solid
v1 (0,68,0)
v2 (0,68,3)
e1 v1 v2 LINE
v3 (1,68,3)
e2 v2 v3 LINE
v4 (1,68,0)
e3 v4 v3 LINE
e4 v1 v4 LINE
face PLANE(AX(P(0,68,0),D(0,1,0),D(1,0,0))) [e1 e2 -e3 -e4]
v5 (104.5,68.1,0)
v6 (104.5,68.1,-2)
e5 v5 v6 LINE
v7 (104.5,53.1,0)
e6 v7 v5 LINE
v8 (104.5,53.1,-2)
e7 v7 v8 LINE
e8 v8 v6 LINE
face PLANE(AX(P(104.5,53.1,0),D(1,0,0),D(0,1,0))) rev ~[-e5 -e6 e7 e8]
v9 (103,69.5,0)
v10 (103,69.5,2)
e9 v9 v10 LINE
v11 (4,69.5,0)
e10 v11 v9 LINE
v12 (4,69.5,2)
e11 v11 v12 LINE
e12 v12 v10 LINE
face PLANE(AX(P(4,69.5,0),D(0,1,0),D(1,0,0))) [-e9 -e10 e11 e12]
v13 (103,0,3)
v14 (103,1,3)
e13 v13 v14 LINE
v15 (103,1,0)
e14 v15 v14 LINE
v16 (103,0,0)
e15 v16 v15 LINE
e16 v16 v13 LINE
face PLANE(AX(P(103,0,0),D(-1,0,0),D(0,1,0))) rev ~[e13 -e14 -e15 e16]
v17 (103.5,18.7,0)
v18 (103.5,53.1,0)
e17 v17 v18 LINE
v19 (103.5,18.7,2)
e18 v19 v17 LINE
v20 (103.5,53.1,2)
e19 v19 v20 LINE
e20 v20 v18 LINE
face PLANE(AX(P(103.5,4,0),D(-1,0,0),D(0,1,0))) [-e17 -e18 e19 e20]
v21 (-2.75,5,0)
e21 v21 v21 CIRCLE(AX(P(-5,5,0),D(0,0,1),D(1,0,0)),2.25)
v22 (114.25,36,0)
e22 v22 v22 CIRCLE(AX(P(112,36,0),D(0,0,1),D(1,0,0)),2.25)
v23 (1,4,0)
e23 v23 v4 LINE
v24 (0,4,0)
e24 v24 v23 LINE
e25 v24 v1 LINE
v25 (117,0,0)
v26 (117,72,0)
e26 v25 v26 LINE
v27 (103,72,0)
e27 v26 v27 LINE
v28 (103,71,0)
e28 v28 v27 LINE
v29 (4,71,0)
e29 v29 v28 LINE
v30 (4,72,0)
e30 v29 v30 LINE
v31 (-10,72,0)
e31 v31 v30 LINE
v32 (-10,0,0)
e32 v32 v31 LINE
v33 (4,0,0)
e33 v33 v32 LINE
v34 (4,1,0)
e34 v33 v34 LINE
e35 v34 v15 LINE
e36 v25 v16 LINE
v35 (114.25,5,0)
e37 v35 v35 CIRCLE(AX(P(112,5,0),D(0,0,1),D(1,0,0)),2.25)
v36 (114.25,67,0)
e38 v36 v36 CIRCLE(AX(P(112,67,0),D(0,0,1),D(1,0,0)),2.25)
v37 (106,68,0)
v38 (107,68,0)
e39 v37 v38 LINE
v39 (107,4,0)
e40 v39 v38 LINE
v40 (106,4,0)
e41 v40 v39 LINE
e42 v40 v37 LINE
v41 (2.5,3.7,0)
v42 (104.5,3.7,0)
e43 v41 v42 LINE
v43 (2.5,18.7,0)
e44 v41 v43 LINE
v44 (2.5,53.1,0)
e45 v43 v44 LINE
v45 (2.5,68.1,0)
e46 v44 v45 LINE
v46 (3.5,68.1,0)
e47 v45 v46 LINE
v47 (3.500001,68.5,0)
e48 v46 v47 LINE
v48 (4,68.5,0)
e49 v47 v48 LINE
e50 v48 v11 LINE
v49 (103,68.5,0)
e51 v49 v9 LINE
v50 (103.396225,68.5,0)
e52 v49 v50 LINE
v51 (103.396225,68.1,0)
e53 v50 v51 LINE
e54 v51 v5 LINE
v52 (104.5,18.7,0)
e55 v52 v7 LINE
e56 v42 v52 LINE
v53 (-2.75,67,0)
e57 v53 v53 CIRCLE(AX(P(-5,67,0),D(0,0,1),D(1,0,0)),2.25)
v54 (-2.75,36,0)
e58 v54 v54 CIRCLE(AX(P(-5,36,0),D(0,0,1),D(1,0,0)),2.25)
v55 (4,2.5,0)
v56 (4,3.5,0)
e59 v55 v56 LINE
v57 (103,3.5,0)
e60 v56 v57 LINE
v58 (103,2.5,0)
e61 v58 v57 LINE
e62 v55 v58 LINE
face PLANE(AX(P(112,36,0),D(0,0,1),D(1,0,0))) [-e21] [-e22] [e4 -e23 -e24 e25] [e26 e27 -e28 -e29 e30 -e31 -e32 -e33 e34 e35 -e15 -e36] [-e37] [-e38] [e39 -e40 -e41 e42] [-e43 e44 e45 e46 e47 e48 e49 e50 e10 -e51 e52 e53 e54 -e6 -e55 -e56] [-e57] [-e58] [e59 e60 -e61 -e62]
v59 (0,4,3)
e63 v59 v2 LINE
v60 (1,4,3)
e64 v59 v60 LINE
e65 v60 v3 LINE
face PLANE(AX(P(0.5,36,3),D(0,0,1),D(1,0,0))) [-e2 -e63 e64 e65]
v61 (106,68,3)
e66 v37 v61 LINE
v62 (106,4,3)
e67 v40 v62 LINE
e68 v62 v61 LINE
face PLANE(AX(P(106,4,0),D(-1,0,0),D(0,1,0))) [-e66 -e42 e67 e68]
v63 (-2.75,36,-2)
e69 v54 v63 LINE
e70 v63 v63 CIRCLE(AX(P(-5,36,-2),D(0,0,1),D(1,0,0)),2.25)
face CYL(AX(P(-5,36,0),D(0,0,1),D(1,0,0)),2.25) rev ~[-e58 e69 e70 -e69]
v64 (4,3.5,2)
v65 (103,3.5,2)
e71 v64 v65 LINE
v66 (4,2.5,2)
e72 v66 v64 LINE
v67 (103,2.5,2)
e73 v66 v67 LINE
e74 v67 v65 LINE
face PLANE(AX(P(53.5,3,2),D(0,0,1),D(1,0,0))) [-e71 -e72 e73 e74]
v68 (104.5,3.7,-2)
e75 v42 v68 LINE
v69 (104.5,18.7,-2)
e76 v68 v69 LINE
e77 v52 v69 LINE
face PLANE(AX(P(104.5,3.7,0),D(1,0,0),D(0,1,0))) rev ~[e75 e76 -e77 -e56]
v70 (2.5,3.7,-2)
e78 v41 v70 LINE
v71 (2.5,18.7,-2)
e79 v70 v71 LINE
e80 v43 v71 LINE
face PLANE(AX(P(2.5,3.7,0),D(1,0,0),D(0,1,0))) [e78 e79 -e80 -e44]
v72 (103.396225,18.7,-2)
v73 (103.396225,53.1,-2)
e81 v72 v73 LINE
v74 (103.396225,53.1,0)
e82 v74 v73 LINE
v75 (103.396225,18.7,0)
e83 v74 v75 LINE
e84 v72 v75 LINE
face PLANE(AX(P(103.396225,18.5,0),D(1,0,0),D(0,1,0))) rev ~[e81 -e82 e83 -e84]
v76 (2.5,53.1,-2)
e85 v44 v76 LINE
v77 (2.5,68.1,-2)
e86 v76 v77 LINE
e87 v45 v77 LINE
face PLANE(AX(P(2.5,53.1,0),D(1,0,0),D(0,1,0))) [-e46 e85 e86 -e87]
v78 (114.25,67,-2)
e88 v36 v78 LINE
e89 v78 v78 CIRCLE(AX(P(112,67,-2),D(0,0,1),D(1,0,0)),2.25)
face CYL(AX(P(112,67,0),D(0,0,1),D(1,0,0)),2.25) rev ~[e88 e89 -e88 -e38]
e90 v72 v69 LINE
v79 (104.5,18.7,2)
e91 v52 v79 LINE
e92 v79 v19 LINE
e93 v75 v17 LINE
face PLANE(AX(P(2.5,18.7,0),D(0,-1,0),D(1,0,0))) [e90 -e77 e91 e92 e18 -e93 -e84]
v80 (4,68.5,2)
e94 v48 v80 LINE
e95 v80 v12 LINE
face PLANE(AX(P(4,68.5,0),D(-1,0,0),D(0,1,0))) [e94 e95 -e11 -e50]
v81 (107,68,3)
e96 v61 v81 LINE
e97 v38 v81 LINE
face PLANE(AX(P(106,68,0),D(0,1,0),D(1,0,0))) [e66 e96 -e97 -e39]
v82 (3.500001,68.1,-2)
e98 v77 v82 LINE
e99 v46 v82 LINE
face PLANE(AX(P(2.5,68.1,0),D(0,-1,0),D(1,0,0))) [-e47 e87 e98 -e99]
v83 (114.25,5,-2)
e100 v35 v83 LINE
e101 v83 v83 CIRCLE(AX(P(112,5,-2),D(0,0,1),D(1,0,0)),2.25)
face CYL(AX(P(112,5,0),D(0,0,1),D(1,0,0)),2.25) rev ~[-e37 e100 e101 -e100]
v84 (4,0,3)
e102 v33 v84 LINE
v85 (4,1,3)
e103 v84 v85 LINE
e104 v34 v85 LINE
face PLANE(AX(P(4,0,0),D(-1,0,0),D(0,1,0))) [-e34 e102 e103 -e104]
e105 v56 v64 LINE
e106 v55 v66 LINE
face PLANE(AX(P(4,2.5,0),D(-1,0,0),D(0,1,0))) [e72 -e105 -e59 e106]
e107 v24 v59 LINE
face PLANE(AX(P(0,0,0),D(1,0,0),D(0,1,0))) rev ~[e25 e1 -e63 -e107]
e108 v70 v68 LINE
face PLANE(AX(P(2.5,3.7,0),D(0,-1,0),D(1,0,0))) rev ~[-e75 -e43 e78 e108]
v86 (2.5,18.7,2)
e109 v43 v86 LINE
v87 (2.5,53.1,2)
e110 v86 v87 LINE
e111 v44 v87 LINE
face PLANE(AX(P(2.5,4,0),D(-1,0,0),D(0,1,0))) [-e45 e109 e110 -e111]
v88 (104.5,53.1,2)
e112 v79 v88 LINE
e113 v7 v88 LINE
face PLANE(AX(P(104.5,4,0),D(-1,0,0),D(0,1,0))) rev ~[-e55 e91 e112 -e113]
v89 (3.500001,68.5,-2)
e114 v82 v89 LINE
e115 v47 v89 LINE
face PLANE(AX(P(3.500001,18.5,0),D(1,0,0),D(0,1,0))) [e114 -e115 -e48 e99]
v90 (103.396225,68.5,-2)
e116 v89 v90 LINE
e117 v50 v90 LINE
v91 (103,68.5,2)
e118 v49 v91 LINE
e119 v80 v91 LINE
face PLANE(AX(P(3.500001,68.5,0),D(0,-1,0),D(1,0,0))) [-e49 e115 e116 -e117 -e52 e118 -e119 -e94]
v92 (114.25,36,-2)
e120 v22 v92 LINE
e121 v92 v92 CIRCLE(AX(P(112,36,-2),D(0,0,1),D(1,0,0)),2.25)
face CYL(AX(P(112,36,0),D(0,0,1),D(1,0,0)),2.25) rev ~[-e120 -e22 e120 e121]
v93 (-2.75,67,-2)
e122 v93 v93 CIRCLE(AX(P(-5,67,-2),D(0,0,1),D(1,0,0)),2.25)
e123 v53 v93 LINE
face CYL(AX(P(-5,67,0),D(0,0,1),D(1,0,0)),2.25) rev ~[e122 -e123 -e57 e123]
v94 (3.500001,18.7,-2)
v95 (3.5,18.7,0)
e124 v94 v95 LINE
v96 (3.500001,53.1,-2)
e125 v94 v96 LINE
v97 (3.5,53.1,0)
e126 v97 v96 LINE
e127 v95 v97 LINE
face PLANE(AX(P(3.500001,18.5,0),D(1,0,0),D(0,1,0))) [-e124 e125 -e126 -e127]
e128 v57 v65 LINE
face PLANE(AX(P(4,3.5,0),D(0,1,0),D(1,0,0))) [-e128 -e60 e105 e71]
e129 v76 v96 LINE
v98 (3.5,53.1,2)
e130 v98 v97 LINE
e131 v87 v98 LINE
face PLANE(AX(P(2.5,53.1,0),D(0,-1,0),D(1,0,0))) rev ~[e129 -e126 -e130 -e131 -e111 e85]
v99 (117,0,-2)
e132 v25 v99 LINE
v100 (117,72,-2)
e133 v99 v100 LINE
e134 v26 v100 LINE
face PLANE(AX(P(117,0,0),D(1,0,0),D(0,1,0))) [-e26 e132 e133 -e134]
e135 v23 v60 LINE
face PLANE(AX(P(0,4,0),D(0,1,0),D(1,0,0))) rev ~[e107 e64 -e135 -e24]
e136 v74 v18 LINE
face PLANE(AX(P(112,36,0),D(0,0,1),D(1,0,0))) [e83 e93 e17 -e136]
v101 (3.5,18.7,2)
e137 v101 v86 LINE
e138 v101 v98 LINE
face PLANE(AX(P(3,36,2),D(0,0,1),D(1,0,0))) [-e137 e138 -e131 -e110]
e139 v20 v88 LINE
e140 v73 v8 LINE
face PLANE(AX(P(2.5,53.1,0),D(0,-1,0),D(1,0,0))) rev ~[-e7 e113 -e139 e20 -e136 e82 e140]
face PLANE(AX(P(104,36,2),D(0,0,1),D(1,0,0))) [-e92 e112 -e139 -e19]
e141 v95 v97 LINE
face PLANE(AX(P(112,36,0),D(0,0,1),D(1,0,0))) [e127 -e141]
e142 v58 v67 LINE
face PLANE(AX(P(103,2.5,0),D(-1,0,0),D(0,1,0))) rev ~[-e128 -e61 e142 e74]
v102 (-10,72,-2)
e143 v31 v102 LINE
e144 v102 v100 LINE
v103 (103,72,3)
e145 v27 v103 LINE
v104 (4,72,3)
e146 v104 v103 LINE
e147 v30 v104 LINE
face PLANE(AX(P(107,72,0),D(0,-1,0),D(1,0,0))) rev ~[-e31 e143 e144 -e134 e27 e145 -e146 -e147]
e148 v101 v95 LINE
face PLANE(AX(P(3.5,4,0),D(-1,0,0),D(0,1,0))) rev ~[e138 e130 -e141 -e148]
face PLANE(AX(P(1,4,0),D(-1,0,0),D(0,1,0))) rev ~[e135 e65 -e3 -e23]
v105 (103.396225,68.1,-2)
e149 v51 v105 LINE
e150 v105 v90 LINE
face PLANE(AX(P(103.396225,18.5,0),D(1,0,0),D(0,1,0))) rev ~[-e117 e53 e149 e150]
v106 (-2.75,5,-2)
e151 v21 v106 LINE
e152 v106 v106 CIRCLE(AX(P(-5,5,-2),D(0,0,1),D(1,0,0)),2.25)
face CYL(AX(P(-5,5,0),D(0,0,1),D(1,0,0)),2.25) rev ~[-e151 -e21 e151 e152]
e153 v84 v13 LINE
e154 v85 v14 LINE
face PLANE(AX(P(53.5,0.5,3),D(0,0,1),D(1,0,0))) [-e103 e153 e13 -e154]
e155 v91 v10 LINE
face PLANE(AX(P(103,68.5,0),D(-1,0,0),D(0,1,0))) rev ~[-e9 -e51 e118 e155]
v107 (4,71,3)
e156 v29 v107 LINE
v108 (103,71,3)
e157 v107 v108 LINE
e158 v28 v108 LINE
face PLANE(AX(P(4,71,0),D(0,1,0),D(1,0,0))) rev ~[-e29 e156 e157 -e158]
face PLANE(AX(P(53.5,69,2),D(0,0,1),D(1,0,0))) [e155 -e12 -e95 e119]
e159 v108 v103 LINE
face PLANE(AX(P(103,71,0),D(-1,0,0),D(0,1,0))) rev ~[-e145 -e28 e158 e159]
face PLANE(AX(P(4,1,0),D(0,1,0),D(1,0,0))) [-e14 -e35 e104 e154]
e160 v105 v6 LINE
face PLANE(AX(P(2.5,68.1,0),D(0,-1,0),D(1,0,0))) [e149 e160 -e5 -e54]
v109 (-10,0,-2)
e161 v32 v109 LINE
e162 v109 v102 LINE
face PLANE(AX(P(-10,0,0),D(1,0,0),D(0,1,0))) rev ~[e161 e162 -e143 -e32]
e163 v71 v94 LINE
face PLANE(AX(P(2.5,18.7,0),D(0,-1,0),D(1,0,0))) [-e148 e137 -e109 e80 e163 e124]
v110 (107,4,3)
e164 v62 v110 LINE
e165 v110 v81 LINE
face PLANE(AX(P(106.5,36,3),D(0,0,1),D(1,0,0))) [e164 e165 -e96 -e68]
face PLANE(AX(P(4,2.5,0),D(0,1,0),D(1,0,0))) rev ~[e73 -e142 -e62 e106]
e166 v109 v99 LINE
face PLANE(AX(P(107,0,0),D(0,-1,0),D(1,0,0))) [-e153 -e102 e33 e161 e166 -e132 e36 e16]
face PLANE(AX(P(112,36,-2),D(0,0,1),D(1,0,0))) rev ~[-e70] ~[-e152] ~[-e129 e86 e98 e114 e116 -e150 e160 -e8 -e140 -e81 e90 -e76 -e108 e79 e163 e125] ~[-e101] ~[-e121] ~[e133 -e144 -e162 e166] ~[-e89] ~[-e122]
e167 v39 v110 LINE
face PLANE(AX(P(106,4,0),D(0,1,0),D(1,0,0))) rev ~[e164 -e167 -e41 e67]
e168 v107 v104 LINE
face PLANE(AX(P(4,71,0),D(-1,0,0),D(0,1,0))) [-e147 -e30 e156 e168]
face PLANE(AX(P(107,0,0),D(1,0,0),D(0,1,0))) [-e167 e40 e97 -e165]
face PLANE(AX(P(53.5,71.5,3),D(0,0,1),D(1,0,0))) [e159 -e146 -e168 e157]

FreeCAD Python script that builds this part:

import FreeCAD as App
import Part
import Sketcher

doc = App.newDocument("Part")
params = doc.addObject("Spreadsheet::Sheet", "Params")
for row, (alias, value) in enumerate([
    ("sketch1_width", "107 mm"),
    ("sketch1_height", "72 mm"),
    ("pad1_length", "2 mm"),
    ("sketch2_width", "1 mm"),
    ("sketch2_height", "64 mm"),
    ("pad2_length", "3 mm"),
    ("sketch3_width", "1 mm"),
    ("sketch3_height", "64 mm"),
    ("pad3_length", "2 mm"),
    ("sketch4_width", "1 mm"),
    ("sketch4_height", "64 mm"),
    ("pad4_length", "2 mm"),
    ("sketch5_width", "1 mm"),
    ("sketch5_height", "64 mm"),
    ("pad5_length", "3 mm"),
    ("sketch6_width", "99 mm"),
    ("sketch6_height", "1 mm"),
    ("pad6_length", "3 mm"),
    ("sketch7_width", "99 mm"),
    ("sketch7_height", "1 mm"),
    ("pad7_length", "2 mm"),
    ("sketch8_width", "99 mm"),
    ("sketch8_height", "1 mm"),
    ("pad8_length", "2 mm"),
    ("sketch9_width", "99 mm"),
    ("sketch9_height", "1 mm"),
    ("pad9_length", "3 mm"),
    ("sketch10_width", "102 mm"),
    ("sketch10_height", "15 mm"),
    ("sketch11_height", "50 mm"),
    ("sketch12_width", "10 mm"),
    ("sketch12_height", "72 mm"),
    ("pad10_length", "2 mm"),
    ("sketch13_diameter", "4.5 mm"),
    ("sketch14_width", "10 mm"),
    ("sketch14_height", "72 mm"),
    ("pad11_length", "2 mm"),
    ("sketch15_diameter", "4.5 mm"),
    ("sketch16_width", "102 mm"),
    ("sketch16_height", "15 mm"),
], start=1):
    params.set(f"A{row}", alias)
    params.set(f"B{row}", "=" + value)
    params.setAlias(f"B{row}", alias)

body = doc.addObject("PartDesign::Body", "Body")

sketch1 = doc.addObject("Sketcher::SketchObject", "Sketch")
body.addObject(sketch1)
sketch1.AttachmentSupport = (doc.XY_Plane, [""])
sketch1.MapMode = "FlatFace"
sketch1.addGeometry([
    Part.LineSegment(App.Vector(0, 72, 0), App.Vector(0, 0, 0)),
    Part.LineSegment(App.Vector(0, 0, 0), App.Vector(107, 0, 0)),
    Part.LineSegment(App.Vector(107, 0, 0), App.Vector(107, 72, 0)),
    Part.LineSegment(App.Vector(107, 72, 0), App.Vector(0, 72, 0)),
], False)
sketch1.addConstraint([
    Sketcher.Constraint("Coincident", 0, 2, 1, 1),
    Sketcher.Constraint("Coincident", 1, 2, 2, 1),
    Sketcher.Constraint("Coincident", 2, 2, 3, 1),
    Sketcher.Constraint("Coincident", 3, 2, 0, 1),
    Sketcher.Constraint("Vertical", 0),
    Sketcher.Constraint("Horizontal", 1),
    Sketcher.Constraint("Vertical", 2),
    Sketcher.Constraint("Horizontal", 3),
    Sketcher.Constraint("Coincident", 0, 2, -1, 1),
    Sketcher.Constraint("DistanceX", 1, 1, 1, 2, 107.0),
    Sketcher.Constraint("DistanceY", 0, 2, 0, 1, 72.0),
])
sketch1.setExpression("Constraints[9]", "Params.sketch1_width")
sketch1.setExpression("Constraints[10]", "Params.sketch1_height")
pad1 = doc.addObject("PartDesign::Pad", "Pad")
body.addObject(pad1)
pad1.Profile = sketch1
pad1.setExpression("Length", "Params.pad1_length")
pad1.Reversed = True

sketch2 = doc.addObject("Sketcher::SketchObject", "Sketch001")
body.addObject(sketch2)
sketch2.AttachmentSupport = (doc.XY_Plane, [""])
sketch2.MapMode = "FlatFace"
sketch2.addGeometry([
    Part.LineSegment(App.Vector(0, 68, 0), App.Vector(0, 4, 0)),
    Part.LineSegment(App.Vector(0, 4, 0), App.Vector(1, 4, 0)),
    Part.LineSegment(App.Vector(1, 4, 0), App.Vector(1, 68, 0)),
    Part.LineSegment(App.Vector(1, 68, 0), App.Vector(0, 68, 0)),
], False)
sketch2.addConstraint([
    Sketcher.Constraint("Coincident", 0, 2, 1, 1),
    Sketcher.Constraint("Coincident", 1, 2, 2, 1),
    Sketcher.Constraint("Coincident", 2, 2, 3, 1),
    Sketcher.Constraint("Coincident", 3, 2, 0, 1),
    Sketcher.Constraint("Vertical", 0),
    Sketcher.Constraint("Horizontal", 1),
    Sketcher.Constraint("Vertical", 2),
    Sketcher.Constraint("Horizontal", 3),
    Sketcher.Constraint("PointOnObject", 0, 2, -2),
    Sketcher.Constraint("DistanceX", 1, 1, 1, 2, 1.0),
    Sketcher.Constraint("DistanceY", 0, 2, 0, 1, 64.0),
    Sketcher.Constraint("DistanceY", -1, 1, 0, 2, 4.0),
])
sketch2.setExpression("Constraints[9]", "Params.sketch2_width")
sketch2.setExpression("Constraints[10]", "Params.sketch2_height")
pad2 = doc.addObject("PartDesign::Pad", "Pad001")
body.addObject(pad2)
pad2.Profile = sketch2
pad2.setExpression("Length", "Params.pad2_length")

sketch3 = doc.addObject("Sketcher::SketchObject", "Sketch002")
body.addObject(sketch3)
sketch3.AttachmentSupport = (doc.XY_Plane, [""])
sketch3.MapMode = "FlatFace"
sketch3.addGeometry([
    Part.LineSegment(App.Vector(2.5, 68, 0), App.Vector(2.5, 4, 0)),
    Part.LineSegment(App.Vector(2.5, 4, 0), App.Vector(3.5, 4, 0)),
    Part.LineSegment(App.Vector(3.5, 4, 0), App.Vector(3.5, 68, 0)),
    Part.LineSegment(App.Vector(3.5, 68, 0), App.Vector(2.5, 68, 0)),
], False)
sketch3.addConstraint([
    Sketcher.Constraint("Coincident", 0, 2, 1, 1),
    Sketcher.Constraint("Coincident", 1, 2, 2, 1),
    Sketcher.Constraint("Coincident", 2, 2, 3, 1),
    Sketcher.Constraint("Coincident", 3, 2, 0, 1),
    Sketcher.Constraint("Vertical", 0),
    Sketcher.Constraint("Horizontal", 1),
    Sketcher.Constraint("Vertical", 2),
    Sketcher.Constraint("Horizontal", 3),
    Sketcher.Constraint("DistanceX", 1, 1, 1, 2, 1.0),
    Sketcher.Constraint("DistanceY", 0, 2, 0, 1, 64.0),
    Sketcher.Constraint("DistanceY", -1, 1, 0, 2, 4.0),
    Sketcher.Constraint("DistanceX", -1, 1, 0, 2, 2.5),
])
sketch3.setExpression("Constraints[8]", "Params.sketch3_width")
sketch3.setExpression("Constraints[9]", "Params.sketch3_height")
pad3 = doc.addObject("PartDesign::Pad", "Pad002")
body.addObject(pad3)
pad3.Profile = sketch3
pad3.setExpression("Length", "Params.pad3_length")

sketch4 = doc.addObject("Sketcher::SketchObject", "Sketch003")
body.addObject(sketch4)
sketch4.AttachmentSupport = (doc.XY_Plane, [""])
sketch4.MapMode = "FlatFace"
sketch4.addGeometry([
    Part.LineSegment(App.Vector(103.5, 68, 0), App.Vector(103.5, 4, 0)),
    Part.LineSegment(App.Vector(103.5, 4, 0), App.Vector(104.5, 4, 0)),
    Part.LineSegment(App.Vector(104.5, 4, 0), App.Vector(104.5, 68, 0)),
    Part.LineSegment(App.Vector(104.5, 68, 0), App.Vector(103.5, 68, 0)),
], False)
sketch4.addConstraint([
    Sketcher.Constraint("Coincident", 0, 2, 1, 1),
    Sketcher.Constraint("Coincident", 1, 2, 2, 1),
    Sketcher.Constraint("Coincident", 2, 2, 3, 1),
    Sketcher.Constraint("Coincident", 3, 2, 0, 1),
    Sketcher.Constraint("Vertical", 0),
    Sketcher.Constraint("Horizontal", 1),
    Sketcher.Constraint("Vertical", 2),
    Sketcher.Constraint("Horizontal", 3),
    Sketcher.Constraint("DistanceX", 1, 1, 1, 2, 1.0),
    Sketcher.Constraint("DistanceY", 0, 2, 0, 1, 64.0),
    Sketcher.Constraint("DistanceY", -1, 1, 0, 2, 4.0),
    Sketcher.Constraint("DistanceX", -1, 1, 0, 2, 103.5),
])
sketch4.setExpression("Constraints[8]", "Params.sketch4_width")
sketch4.setExpression("Constraints[9]", "Params.sketch4_height")
pad4 = doc.addObject("PartDesign::Pad", "Pad003")
body.addObject(pad4)
pad4.Profile = sketch4
pad4.setExpression("Length", "Params.pad4_length")

sketch5 = doc.addObject("Sketcher::SketchObject", "Sketch004")
body.addObject(sketch5)
sketch5.AttachmentSupport = (doc.XY_Plane, [""])
sketch5.MapMode = "FlatFace"
sketch5.addGeometry([
    Part.LineSegment(App.Vector(106, 68, 0), App.Vector(106, 4, 0)),
    Part.LineSegment(App.Vector(106, 4, 0), App.Vector(107, 4, 0)),
    Part.LineSegment(App.Vector(107, 4, 0), App.Vector(107, 68, 0)),
    Part.LineSegment(App.Vector(107, 68, 0), App.Vector(106, 68, 0)),
], False)
sketch5.addConstraint([
    Sketcher.Constraint("Coincident", 0, 2, 1, 1),
    Sketcher.Constraint("Coincident", 1, 2, 2, 1),
    Sketcher.Constraint("Coincident", 2, 2, 3, 1),
    Sketcher.Constraint("Coincident", 3, 2, 0, 1),
    Sketcher.Constraint("Vertical", 0),
    Sketcher.Constraint("Horizontal", 1),
    Sketcher.Constraint("Vertical", 2),
    Sketcher.Constraint("Horizontal", 3),
    Sketcher.Constraint("DistanceX", 1, 1, 1, 2, 1.0),
    Sketcher.Constraint("DistanceY", 0, 2, 0, 1, 64.0),
    Sketcher.Constraint("DistanceX", -1, 1, 0, 2, 106.0),
    Sketcher.Constraint("DistanceY", -1, 1, 0, 2, 4.0),
])
sketch5.setExpression("Constraints[8]", "Params.sketch5_width")
sketch5.setExpression("Constraints[9]", "Params.sketch5_height")
pad5 = doc.addObject("PartDesign::Pad", "Pad004")
body.addObject(pad5)
pad5.Profile = sketch5
pad5.setExpression("Length", "Params.pad5_length")

sketch6 = doc.addObject("Sketcher::SketchObject", "Sketch005")
body.addObject(sketch6)
sketch6.AttachmentSupport = (doc.XY_Plane, [""])
sketch6.MapMode = "FlatFace"
sketch6.addGeometry([
    Part.LineSegment(App.Vector(4, 72, 0), App.Vector(4, 71, 0)),
    Part.LineSegment(App.Vector(4, 71, 0), App.Vector(103, 71, 0)),
    Part.LineSegment(App.Vector(103, 71, 0), App.Vector(103, 72, 0)),
    Part.LineSegment(App.Vector(103, 72, 0), App.Vector(4, 72, 0)),
], False)
sketch6.addConstraint([
    Sketcher.Constraint("Coincident", 0, 2, 1, 1),
    Sketcher.Constraint("Coincident", 1, 2, 2, 1),
    Sketcher.Constraint("Coincident", 2, 2, 3, 1),
    Sketcher.Constraint("Coincident", 3, 2, 0, 1),
    Sketcher.Constraint("Vertical", 0),
    Sketcher.Constraint("Horizontal", 1),
    Sketcher.Constraint("Vertical", 2),
    Sketcher.Constraint("Horizontal", 3),
    Sketcher.Constraint("DistanceX", 1, 1, 1, 2, 99.0),
    Sketcher.Constraint("DistanceY", 0, 2, 0, 1, 1.0),
    Sketcher.Constraint("DistanceX", -1, 1, 0, 2, 4.0),
    Sketcher.Constraint("DistanceY", -1, 1, 0, 2, 71.0),
])
sketch6.setExpression("Constraints[8]", "Params.sketch6_width")
sketch6.setExpression("Constraints[9]", "Params.sketch6_height")
pad6 = doc.addObject("PartDesign::Pad", "Pad005")
body.addObject(pad6)
pad6.Profile = sketch6
pad6.setExpression("Length", "Params.pad6_length")

sketch7 = doc.addObject("Sketcher::SketchObject", "Sketch006")
body.addObject(sketch7)
sketch7.AttachmentSupport = (doc.XY_Plane, [""])
sketch7.MapMode = "FlatFace"
sketch7.addGeometry([
    Part.LineSegment(App.Vector(4, 69.5, 0), App.Vector(4, 68.5, 0)),
    Part.LineSegment(App.Vector(4, 68.5, 0), App.Vector(103, 68.5, 0)),
    Part.LineSegment(App.Vector(103, 68.5, 0), App.Vector(103, 69.5, 0)),
    Part.LineSegment(App.Vector(103, 69.5, 0), App.Vector(4, 69.5, 0)),
], False)
sketch7.addConstraint([
    Sketcher.Constraint("Coincident", 0, 2, 1, 1),
    Sketcher.Constraint("Coincident", 1, 2, 2, 1),
    Sketcher.Constraint("Coincident", 2, 2, 3, 1),
    Sketcher.Constraint("Coincident", 3, 2, 0, 1),
    Sketcher.Constraint("Vertical", 0),
    Sketcher.Constraint("Horizontal", 1),
    Sketcher.Constraint("Vertical", 2),
    Sketcher.Constraint("Horizontal", 3),
    Sketcher.Constraint("DistanceX", 1, 1, 1, 2, 99.0),
    Sketcher.Constraint("DistanceY", 0, 2, 0, 1, 1.0),
    Sketcher.Constraint("DistanceX", -1, 1, 0, 2, 4.0),
    Sketcher.Constraint("DistanceY", -1, 1, 0, 2, 68.5),
])
sketch7.setExpression("Constraints[8]", "Params.sketch7_width")
sketch7.setExpression("Constraints[9]", "Params.sketch7_height")
pad7 = doc.addObject("PartDesign::Pad", "Pad006")
body.addObject(pad7)
pad7.Profile = sketch7
pad7.setExpression("Length", "Params.pad7_length")

sketch8 = doc.addObject("Sketcher::SketchObject", "Sketch007")
body.addObject(sketch8)
sketch8.AttachmentSupport = (doc.XY_Plane, [""])
sketch8.MapMode = "FlatFace"
sketch8.addGeometry([
    Part.LineSegment(App.Vector(4, 3.5, 0), App.Vector(4, 2.5, 0)),
    Part.LineSegment(App.Vector(4, 2.5, 0), App.Vector(103, 2.5, 0)),
    Part.LineSegment(App.Vector(103, 2.5, 0), App.Vector(103, 3.5, 0)),
    Part.LineSegment(App.Vector(103, 3.5, 0), App.Vector(4, 3.5, 0)),
], False)
sketch8.addConstraint([
    Sketcher.Constraint("Coincident", 0, 2, 1, 1),
    Sketcher.Constraint("Coincident", 1, 2, 2, 1),
    Sketcher.Constraint("Coincident", 2, 2, 3, 1),
    Sketcher.Constraint("Coincident", 3, 2, 0, 1),
    Sketcher.Constraint("Vertical", 0),
    Sketcher.Constraint("Horizontal", 1),
    Sketcher.Constraint("Vertical", 2),
    Sketcher.Constraint("Horizontal", 3),
    Sketcher.Constraint("DistanceX", 1, 1, 1, 2, 99.0),
    Sketcher.Constraint("DistanceY", 0, 2, 0, 1, 1.0),
    Sketcher.Constraint("DistanceX", -1, 1, 0, 2, 4.0),
    Sketcher.Constraint("DistanceY", -1, 1, 0, 2, 2.5),
])
sketch8.setExpression("Constraints[8]", "Params.sketch8_width")
sketch8.setExpression("Constraints[9]", "Params.sketch8_height")
pad8 = doc.addObject("PartDesign::Pad", "Pad007")
body.addObject(pad8)
pad8.Profile = sketch8
pad8.setExpression("Length", "Params.pad8_length")

sketch9 = doc.addObject("Sketcher::SketchObject", "Sketch008")
body.addObject(sketch9)
sketch9.AttachmentSupport = (doc.XY_Plane, [""])
sketch9.MapMode = "FlatFace"
sketch9.addGeometry([
    Part.LineSegment(App.Vector(4, 1, 0), App.Vector(4, 0, 0)),
    Part.LineSegment(App.Vector(4, 0, 0), App.Vector(103, 0, 0)),
    Part.LineSegment(App.Vector(103, 0, 0), App.Vector(103, 1, 0)),
    Part.LineSegment(App.Vector(103, 1, 0), App.Vector(4, 1, 0)),
], False)
sketch9.addConstraint([
    Sketcher.Constraint("Coincident", 0, 2, 1, 1),
    Sketcher.Constraint("Coincident", 1, 2, 2, 1),
    Sketcher.Constraint("Coincident", 2, 2, 3, 1),
    Sketcher.Constraint("Coincident", 3, 2, 0, 1),
    Sketcher.Constraint("Vertical", 0),
    Sketcher.Constraint("Horizontal", 1),
    Sketcher.Constraint("Vertical", 2),
    Sketcher.Constraint("Horizontal", 3),
    Sketcher.Constraint("PointOnObject", 0, 2, -1),
    Sketcher.Constraint("DistanceX", 1, 1, 1, 2, 99.0),
    Sketcher.Constraint("DistanceY", 0, 2, 0, 1, 1.0),
    Sketcher.Constraint("DistanceX", -1, 1, 0, 2, 4.0),
])
sketch9.setExpression("Constraints[9]", "Params.sketch9_width")
sketch9.setExpression("Constraints[10]", "Params.sketch9_height")
pad9 = doc.addObject("PartDesign::Pad", "Pad008")
body.addObject(pad9)
pad9.Profile = sketch9
pad9.setExpression("Length", "Params.pad9_length")

sketch10 = doc.addObject("Sketcher::SketchObject", "Sketch009")
body.addObject(sketch10)
sketch10.AttachmentSupport = (doc.XY_Plane, [""])
sketch10.MapMode = "FlatFace"
sketch10.addGeometry([
    Part.LineSegment(App.Vector(2.5, 18.7, 0), App.Vector(2.5, 3.7, 0)),
    Part.LineSegment(App.Vector(2.5, 3.7, 0), App.Vector(104.5, 3.7, 0)),
    Part.LineSegment(App.Vector(104.5, 3.7, 0), App.Vector(104.5, 18.7, 0)),
    Part.LineSegment(App.Vector(104.5, 18.7, 0), App.Vector(2.5, 18.7, 0)),
], False)
sketch10.addConstraint([
    Sketcher.Constraint("Coincident", 0, 2, 1, 1),
    Sketcher.Constraint("Coincident", 1, 2, 2, 1),
    Sketcher.Constraint("Coincident", 2, 2, 3, 1),
    Sketcher.Constraint("Coincident", 3, 2, 0, 1),
    Sketcher.Constraint("Vertical", 0),
    Sketcher.Constraint("Horizontal", 1),
    Sketcher.Constraint("Vertical", 2),
    Sketcher.Constraint("Horizontal", 3),
    Sketcher.Constraint("DistanceX", 1, 1, 1, 2, 102.0),
    Sketcher.Constraint("DistanceY", 0, 2, 0, 1, 15.0),
    Sketcher.Constraint("DistanceX", -1, 1, 0, 2, 2.5),
    Sketcher.Constraint("DistanceY", -1, 1, 0, 2, 3.7),
])
sketch10.setExpression("Constraints[8]", "Params.sketch10_width")
sketch10.setExpression("Constraints[9]", "Params.sketch10_height")
pocket1 = doc.addObject("PartDesign::Pocket", "Pocket")
body.addObject(pocket1)
pocket1.Profile = sketch10
pocket1.Type = "ThroughAll"
pocket1.Midplane = True

sketch11 = doc.addObject("Sketcher::SketchObject", "Sketch010")
body.addObject(sketch11)
sketch11.AttachmentSupport = (doc.XY_Plane, [""])
sketch11.MapMode = "FlatFace"
sketch11.addGeometry([
    Part.LineSegment(App.Vector(3.500001, 68.5, 0), App.Vector(3.500001, 18.5, 0)),
    Part.LineSegment(App.Vector(3.500001, 18.5, 0), App.Vector(103.396225, 18.5, 0)),
    Part.LineSegment(App.Vector(103.396225, 18.5, 0), App.Vector(103.396225, 68.5, 0)),
    Part.LineSegment(App.Vector(103.396225, 68.5, 0), App.Vector(3.500001, 68.5, 0)),
], False)
sketch11.addConstraint([
    Sketcher.Constraint("Coincident", 0, 2, 1, 1),
    Sketcher.Constraint("Coincident", 1, 2, 2, 1),
    Sketcher.Constraint("Coincident", 2, 2, 3, 1),
    Sketcher.Constraint("Coincident", 3, 2, 0, 1),
    Sketcher.Constraint("Vertical", 0),
    Sketcher.Constraint("Horizontal", 1),
    Sketcher.Constraint("Vertical", 2),
    Sketcher.Constraint("Horizontal", 3),
    Sketcher.Constraint("DistanceY", 0, 2, 0, 1, 50.0),
    Sketcher.Constraint("DistanceX", -1, 1, 0, 2, 3.500001),
    Sketcher.Constraint("DistanceY", -1, 1, 0, 2, 18.5),
    Sketcher.Constraint("DistanceX", 1, 1, 1, 2, 99.896225),
])
sketch11.setExpression("Constraints[8]", "Params.sketch11_height")
pocket2 = doc.addObject("PartDesign::Pocket", "Pocket001")
body.addObject(pocket2)
pocket2.Profile = sketch11
pocket2.Type = "ThroughAll"

sketch12 = doc.addObject("Sketcher::SketchObject", "Sketch011")
body.addObject(sketch12)
sketch12.AttachmentSupport = (doc.XY_Plane, [""])
sketch12.MapMode = "FlatFace"
sketch12.addGeometry([
    Part.LineSegment(App.Vector(-10, 72, 0), App.Vector(-10, 0, 0)),
    Part.LineSegment(App.Vector(-10, 0, 0), App.Vector(0, 0, 0)),
    Part.LineSegment(App.Vector(0, 0, 0), App.Vector(0, 72, 0)),
    Part.LineSegment(App.Vector(0, 72, 0), App.Vector(-10, 72, 0)),
], False)
sketch12.addConstraint([
    Sketcher.Constraint("Coincident", 0, 2, 1, 1),
    Sketcher.Constraint("Coincident", 1, 2, 2, 1),
    Sketcher.Constraint("Coincident", 2, 2, 3, 1),
    Sketcher.Constraint("Coincident", 3, 2, 0, 1),
    Sketcher.Constraint("Vertical", 0),
    Sketcher.Constraint("Horizontal", 1),
    Sketcher.Constraint("Vertical", 2),
    Sketcher.Constraint("Horizontal", 3),
    Sketcher.Constraint("Coincident", 1, 2, -1, 1),
    Sketcher.Constraint("DistanceX", 1, 1, 1, 2, 10.0),
    Sketcher.Constraint("DistanceY", 0, 2, 0, 1, 72.0),
])
sketch12.setExpression("Constraints[9]", "Params.sketch12_width")
sketch12.setExpression("Constraints[10]", "Params.sketch12_height")
pad10 = doc.addObject("PartDesign::Pad", "Pad009")
body.addObject(pad10)
pad10.Profile = sketch12
pad10.setExpression("Length", "Params.pad10_length")
pad10.Reversed = True

sketch13 = doc.addObject("Sketcher::SketchObject", "Sketch012")
body.addObject(sketch13)
sketch13.AttachmentSupport = (doc.XY_Plane, [""])
sketch13.MapMode = "FlatFace"
sketch13.addGeometry([
    Part.Circle(App.Vector(-5, 5, 0), App.Vector(0, 0, 1), 2.25),
    Part.Circle(App.Vector(-5, 36, 0), App.Vector(0, 0, 1), 2.25),
    Part.Circle(App.Vector(-5, 67, 0), App.Vector(0, 0, 1), 2.25),
], False)
sketch13.addConstraint([
    Sketcher.Constraint("Equal", 0, 1),
    Sketcher.Constraint("Equal", 1, 2),
    Sketcher.Constraint("Vertical", 0, 3, 1, 3),
    Sketcher.Constraint("Vertical", 1, 3, 2, 3),
    Sketcher.Constraint("Diameter", 0, 4.5),
    Sketcher.Constraint("DistanceX", 0, 3, -1, 1, 5.0),
    Sketcher.Constraint("DistanceY", -1, 1, 0, 3, 5.0),
    Sketcher.Constraint("DistanceY", -1, 1, 1, 3, 36.0),
    Sketcher.Constraint("DistanceY", -1, 1, 2, 3, 67.0),
])
sketch13.setExpression("Constraints[4]", "Params.sketch13_diameter")
pocket3 = doc.addObject("PartDesign::Pocket", "Pocket002")
body.addObject(pocket3)
pocket3.Profile = sketch13
pocket3.Type = "ThroughAll"

sketch14 = doc.addObject("Sketcher::SketchObject", "Sketch013")
body.addObject(sketch14)
sketch14.AttachmentSupport = (doc.XY_Plane, [""])
sketch14.MapMode = "FlatFace"
sketch14.addGeometry([
    Part.LineSegment(App.Vector(107, 72, 0), App.Vector(107, 0, 0)),
    Part.LineSegment(App.Vector(107, 0, 0), App.Vector(117, 0, 0)),
    Part.LineSegment(App.Vector(117, 0, 0), App.Vector(117, 72, 0)),
    Part.LineSegment(App.Vector(117, 72, 0), App.Vector(107, 72, 0)),
], False)
sketch14.addConstraint([
    Sketcher.Constraint("Coincident", 0, 2, 1, 1),
    Sketcher.Constraint("Coincident", 1, 2, 2, 1),
    Sketcher.Constraint("Coincident", 2, 2, 3, 1),
    Sketcher.Constraint("Coincident", 3, 2, 0, 1),
    Sketcher.Constraint("Vertical", 0),
    Sketcher.Constraint("Horizontal", 1),
    Sketcher.Constraint("Vertical", 2),
    Sketcher.Constraint("Horizontal", 3),
    Sketcher.Constraint("PointOnObject", 0, 2, -1),
    Sketcher.Constraint("DistanceX", 1, 1, 1, 2, 10.0),
    Sketcher.Constraint("DistanceY", 0, 2, 0, 1, 72.0),
    Sketcher.Constraint("DistanceX", -1, 1, 0, 2, 107.0),
])
sketch14.setExpression("Constraints[9]", "Params.sketch14_width")
sketch14.setExpression("Constraints[10]", "Params.sketch14_height")
pad11 = doc.addObject("PartDesign::Pad", "Pad010")
body.addObject(pad11)
pad11.Profile = sketch14
pad11.setExpression("Length", "Params.pad11_length")
pad11.Reversed = True

sketch15 = doc.addObject("Sketcher::SketchObject", "Sketch014")
body.addObject(sketch15)
sketch15.AttachmentSupport = (doc.XY_Plane, [""])
sketch15.MapMode = "FlatFace"
sketch15.addGeometry([
    Part.Circle(App.Vector(112, 5, 0), App.Vector(0, 0, 1), 2.25),
    Part.Circle(App.Vector(112, 36, 0), App.Vector(0, 0, 1), 2.25),
    Part.Circle(App.Vector(112, 67, 0), App.Vector(0, 0, 1), 2.25),
], False)
sketch15.addConstraint([
    Sketcher.Constraint("Equal", 0, 1),
    Sketcher.Constraint("Equal", 1, 2),
    Sketcher.Constraint("Vertical", 0, 3, 1, 3),
    Sketcher.Constraint("Vertical", 1, 3, 2, 3),
    Sketcher.Constraint("Diameter", 0, 4.5),
    Sketcher.Constraint("DistanceX", -1, 1, 0, 3, 112.0),
    Sketcher.Constraint("DistanceY", -1, 1, 0, 3, 5.0),
    Sketcher.Constraint("DistanceY", -1, 1, 1, 3, 36.0),
    Sketcher.Constraint("DistanceY", -1, 1, 2, 3, 67.0),
])
sketch15.setExpression("Constraints[4]", "Params.sketch15_diameter")
pocket4 = doc.addObject("PartDesign::Pocket", "Pocket003")
body.addObject(pocket4)
pocket4.Profile = sketch15
pocket4.Type = "ThroughAll"

sketch16 = doc.addObject("Sketcher::SketchObject", "Sketch015")
body.addObject(sketch16)
sketch16.AttachmentSupport = (doc.XY_Plane, [""])
sketch16.MapMode = "FlatFace"
sketch16.addGeometry([
    Part.LineSegment(App.Vector(2.5, 68.1, 0), App.Vector(2.5, 53.1, 0)),
    Part.LineSegment(App.Vector(2.5, 53.1, 0), App.Vector(104.5, 53.1, 0)),
    Part.LineSegment(App.Vector(104.5, 53.1, 0), App.Vector(104.5, 68.1, 0)),
    Part.LineSegment(App.Vector(104.5, 68.1, 0), App.Vector(2.5, 68.1, 0)),
], False)
sketch16.addConstraint([
    Sketcher.Constraint("Coincident", 0, 2, 1, 1),
    Sketcher.Constraint("Coincident", 1, 2, 2, 1),
    Sketcher.Constraint("Coincident", 2, 2, 3, 1),
    Sketcher.Constraint("Coincident", 3, 2, 0, 1),
    Sketcher.Constraint("Vertical", 0),
    Sketcher.Constraint("Horizontal", 1),
    Sketcher.Constraint("Vertical", 2),
    Sketcher.Constraint("Horizontal", 3),
    Sketcher.Constraint("DistanceX", 1, 1, 1, 2, 102.0),
    Sketcher.Constraint("DistanceY", 0, 2, 0, 1, 15.0),
    Sketcher.Constraint("DistanceX", -1, 1, 0, 2, 2.5),
    Sketcher.Constraint("DistanceY", -1, 1, 0, 2, 53.1),
])
sketch16.setExpression("Constraints[8]", "Params.sketch16_width")
sketch16.setExpression("Constraints[9]", "Params.sketch16_height")
pocket5 = doc.addObject("PartDesign::Pocket", "Pocket004")
body.addObject(pocket5)
pocket5.Profile = sketch16
pocket5.Type = "ThroughAll"
pocket5.Midplane = True

doc.recompute()
